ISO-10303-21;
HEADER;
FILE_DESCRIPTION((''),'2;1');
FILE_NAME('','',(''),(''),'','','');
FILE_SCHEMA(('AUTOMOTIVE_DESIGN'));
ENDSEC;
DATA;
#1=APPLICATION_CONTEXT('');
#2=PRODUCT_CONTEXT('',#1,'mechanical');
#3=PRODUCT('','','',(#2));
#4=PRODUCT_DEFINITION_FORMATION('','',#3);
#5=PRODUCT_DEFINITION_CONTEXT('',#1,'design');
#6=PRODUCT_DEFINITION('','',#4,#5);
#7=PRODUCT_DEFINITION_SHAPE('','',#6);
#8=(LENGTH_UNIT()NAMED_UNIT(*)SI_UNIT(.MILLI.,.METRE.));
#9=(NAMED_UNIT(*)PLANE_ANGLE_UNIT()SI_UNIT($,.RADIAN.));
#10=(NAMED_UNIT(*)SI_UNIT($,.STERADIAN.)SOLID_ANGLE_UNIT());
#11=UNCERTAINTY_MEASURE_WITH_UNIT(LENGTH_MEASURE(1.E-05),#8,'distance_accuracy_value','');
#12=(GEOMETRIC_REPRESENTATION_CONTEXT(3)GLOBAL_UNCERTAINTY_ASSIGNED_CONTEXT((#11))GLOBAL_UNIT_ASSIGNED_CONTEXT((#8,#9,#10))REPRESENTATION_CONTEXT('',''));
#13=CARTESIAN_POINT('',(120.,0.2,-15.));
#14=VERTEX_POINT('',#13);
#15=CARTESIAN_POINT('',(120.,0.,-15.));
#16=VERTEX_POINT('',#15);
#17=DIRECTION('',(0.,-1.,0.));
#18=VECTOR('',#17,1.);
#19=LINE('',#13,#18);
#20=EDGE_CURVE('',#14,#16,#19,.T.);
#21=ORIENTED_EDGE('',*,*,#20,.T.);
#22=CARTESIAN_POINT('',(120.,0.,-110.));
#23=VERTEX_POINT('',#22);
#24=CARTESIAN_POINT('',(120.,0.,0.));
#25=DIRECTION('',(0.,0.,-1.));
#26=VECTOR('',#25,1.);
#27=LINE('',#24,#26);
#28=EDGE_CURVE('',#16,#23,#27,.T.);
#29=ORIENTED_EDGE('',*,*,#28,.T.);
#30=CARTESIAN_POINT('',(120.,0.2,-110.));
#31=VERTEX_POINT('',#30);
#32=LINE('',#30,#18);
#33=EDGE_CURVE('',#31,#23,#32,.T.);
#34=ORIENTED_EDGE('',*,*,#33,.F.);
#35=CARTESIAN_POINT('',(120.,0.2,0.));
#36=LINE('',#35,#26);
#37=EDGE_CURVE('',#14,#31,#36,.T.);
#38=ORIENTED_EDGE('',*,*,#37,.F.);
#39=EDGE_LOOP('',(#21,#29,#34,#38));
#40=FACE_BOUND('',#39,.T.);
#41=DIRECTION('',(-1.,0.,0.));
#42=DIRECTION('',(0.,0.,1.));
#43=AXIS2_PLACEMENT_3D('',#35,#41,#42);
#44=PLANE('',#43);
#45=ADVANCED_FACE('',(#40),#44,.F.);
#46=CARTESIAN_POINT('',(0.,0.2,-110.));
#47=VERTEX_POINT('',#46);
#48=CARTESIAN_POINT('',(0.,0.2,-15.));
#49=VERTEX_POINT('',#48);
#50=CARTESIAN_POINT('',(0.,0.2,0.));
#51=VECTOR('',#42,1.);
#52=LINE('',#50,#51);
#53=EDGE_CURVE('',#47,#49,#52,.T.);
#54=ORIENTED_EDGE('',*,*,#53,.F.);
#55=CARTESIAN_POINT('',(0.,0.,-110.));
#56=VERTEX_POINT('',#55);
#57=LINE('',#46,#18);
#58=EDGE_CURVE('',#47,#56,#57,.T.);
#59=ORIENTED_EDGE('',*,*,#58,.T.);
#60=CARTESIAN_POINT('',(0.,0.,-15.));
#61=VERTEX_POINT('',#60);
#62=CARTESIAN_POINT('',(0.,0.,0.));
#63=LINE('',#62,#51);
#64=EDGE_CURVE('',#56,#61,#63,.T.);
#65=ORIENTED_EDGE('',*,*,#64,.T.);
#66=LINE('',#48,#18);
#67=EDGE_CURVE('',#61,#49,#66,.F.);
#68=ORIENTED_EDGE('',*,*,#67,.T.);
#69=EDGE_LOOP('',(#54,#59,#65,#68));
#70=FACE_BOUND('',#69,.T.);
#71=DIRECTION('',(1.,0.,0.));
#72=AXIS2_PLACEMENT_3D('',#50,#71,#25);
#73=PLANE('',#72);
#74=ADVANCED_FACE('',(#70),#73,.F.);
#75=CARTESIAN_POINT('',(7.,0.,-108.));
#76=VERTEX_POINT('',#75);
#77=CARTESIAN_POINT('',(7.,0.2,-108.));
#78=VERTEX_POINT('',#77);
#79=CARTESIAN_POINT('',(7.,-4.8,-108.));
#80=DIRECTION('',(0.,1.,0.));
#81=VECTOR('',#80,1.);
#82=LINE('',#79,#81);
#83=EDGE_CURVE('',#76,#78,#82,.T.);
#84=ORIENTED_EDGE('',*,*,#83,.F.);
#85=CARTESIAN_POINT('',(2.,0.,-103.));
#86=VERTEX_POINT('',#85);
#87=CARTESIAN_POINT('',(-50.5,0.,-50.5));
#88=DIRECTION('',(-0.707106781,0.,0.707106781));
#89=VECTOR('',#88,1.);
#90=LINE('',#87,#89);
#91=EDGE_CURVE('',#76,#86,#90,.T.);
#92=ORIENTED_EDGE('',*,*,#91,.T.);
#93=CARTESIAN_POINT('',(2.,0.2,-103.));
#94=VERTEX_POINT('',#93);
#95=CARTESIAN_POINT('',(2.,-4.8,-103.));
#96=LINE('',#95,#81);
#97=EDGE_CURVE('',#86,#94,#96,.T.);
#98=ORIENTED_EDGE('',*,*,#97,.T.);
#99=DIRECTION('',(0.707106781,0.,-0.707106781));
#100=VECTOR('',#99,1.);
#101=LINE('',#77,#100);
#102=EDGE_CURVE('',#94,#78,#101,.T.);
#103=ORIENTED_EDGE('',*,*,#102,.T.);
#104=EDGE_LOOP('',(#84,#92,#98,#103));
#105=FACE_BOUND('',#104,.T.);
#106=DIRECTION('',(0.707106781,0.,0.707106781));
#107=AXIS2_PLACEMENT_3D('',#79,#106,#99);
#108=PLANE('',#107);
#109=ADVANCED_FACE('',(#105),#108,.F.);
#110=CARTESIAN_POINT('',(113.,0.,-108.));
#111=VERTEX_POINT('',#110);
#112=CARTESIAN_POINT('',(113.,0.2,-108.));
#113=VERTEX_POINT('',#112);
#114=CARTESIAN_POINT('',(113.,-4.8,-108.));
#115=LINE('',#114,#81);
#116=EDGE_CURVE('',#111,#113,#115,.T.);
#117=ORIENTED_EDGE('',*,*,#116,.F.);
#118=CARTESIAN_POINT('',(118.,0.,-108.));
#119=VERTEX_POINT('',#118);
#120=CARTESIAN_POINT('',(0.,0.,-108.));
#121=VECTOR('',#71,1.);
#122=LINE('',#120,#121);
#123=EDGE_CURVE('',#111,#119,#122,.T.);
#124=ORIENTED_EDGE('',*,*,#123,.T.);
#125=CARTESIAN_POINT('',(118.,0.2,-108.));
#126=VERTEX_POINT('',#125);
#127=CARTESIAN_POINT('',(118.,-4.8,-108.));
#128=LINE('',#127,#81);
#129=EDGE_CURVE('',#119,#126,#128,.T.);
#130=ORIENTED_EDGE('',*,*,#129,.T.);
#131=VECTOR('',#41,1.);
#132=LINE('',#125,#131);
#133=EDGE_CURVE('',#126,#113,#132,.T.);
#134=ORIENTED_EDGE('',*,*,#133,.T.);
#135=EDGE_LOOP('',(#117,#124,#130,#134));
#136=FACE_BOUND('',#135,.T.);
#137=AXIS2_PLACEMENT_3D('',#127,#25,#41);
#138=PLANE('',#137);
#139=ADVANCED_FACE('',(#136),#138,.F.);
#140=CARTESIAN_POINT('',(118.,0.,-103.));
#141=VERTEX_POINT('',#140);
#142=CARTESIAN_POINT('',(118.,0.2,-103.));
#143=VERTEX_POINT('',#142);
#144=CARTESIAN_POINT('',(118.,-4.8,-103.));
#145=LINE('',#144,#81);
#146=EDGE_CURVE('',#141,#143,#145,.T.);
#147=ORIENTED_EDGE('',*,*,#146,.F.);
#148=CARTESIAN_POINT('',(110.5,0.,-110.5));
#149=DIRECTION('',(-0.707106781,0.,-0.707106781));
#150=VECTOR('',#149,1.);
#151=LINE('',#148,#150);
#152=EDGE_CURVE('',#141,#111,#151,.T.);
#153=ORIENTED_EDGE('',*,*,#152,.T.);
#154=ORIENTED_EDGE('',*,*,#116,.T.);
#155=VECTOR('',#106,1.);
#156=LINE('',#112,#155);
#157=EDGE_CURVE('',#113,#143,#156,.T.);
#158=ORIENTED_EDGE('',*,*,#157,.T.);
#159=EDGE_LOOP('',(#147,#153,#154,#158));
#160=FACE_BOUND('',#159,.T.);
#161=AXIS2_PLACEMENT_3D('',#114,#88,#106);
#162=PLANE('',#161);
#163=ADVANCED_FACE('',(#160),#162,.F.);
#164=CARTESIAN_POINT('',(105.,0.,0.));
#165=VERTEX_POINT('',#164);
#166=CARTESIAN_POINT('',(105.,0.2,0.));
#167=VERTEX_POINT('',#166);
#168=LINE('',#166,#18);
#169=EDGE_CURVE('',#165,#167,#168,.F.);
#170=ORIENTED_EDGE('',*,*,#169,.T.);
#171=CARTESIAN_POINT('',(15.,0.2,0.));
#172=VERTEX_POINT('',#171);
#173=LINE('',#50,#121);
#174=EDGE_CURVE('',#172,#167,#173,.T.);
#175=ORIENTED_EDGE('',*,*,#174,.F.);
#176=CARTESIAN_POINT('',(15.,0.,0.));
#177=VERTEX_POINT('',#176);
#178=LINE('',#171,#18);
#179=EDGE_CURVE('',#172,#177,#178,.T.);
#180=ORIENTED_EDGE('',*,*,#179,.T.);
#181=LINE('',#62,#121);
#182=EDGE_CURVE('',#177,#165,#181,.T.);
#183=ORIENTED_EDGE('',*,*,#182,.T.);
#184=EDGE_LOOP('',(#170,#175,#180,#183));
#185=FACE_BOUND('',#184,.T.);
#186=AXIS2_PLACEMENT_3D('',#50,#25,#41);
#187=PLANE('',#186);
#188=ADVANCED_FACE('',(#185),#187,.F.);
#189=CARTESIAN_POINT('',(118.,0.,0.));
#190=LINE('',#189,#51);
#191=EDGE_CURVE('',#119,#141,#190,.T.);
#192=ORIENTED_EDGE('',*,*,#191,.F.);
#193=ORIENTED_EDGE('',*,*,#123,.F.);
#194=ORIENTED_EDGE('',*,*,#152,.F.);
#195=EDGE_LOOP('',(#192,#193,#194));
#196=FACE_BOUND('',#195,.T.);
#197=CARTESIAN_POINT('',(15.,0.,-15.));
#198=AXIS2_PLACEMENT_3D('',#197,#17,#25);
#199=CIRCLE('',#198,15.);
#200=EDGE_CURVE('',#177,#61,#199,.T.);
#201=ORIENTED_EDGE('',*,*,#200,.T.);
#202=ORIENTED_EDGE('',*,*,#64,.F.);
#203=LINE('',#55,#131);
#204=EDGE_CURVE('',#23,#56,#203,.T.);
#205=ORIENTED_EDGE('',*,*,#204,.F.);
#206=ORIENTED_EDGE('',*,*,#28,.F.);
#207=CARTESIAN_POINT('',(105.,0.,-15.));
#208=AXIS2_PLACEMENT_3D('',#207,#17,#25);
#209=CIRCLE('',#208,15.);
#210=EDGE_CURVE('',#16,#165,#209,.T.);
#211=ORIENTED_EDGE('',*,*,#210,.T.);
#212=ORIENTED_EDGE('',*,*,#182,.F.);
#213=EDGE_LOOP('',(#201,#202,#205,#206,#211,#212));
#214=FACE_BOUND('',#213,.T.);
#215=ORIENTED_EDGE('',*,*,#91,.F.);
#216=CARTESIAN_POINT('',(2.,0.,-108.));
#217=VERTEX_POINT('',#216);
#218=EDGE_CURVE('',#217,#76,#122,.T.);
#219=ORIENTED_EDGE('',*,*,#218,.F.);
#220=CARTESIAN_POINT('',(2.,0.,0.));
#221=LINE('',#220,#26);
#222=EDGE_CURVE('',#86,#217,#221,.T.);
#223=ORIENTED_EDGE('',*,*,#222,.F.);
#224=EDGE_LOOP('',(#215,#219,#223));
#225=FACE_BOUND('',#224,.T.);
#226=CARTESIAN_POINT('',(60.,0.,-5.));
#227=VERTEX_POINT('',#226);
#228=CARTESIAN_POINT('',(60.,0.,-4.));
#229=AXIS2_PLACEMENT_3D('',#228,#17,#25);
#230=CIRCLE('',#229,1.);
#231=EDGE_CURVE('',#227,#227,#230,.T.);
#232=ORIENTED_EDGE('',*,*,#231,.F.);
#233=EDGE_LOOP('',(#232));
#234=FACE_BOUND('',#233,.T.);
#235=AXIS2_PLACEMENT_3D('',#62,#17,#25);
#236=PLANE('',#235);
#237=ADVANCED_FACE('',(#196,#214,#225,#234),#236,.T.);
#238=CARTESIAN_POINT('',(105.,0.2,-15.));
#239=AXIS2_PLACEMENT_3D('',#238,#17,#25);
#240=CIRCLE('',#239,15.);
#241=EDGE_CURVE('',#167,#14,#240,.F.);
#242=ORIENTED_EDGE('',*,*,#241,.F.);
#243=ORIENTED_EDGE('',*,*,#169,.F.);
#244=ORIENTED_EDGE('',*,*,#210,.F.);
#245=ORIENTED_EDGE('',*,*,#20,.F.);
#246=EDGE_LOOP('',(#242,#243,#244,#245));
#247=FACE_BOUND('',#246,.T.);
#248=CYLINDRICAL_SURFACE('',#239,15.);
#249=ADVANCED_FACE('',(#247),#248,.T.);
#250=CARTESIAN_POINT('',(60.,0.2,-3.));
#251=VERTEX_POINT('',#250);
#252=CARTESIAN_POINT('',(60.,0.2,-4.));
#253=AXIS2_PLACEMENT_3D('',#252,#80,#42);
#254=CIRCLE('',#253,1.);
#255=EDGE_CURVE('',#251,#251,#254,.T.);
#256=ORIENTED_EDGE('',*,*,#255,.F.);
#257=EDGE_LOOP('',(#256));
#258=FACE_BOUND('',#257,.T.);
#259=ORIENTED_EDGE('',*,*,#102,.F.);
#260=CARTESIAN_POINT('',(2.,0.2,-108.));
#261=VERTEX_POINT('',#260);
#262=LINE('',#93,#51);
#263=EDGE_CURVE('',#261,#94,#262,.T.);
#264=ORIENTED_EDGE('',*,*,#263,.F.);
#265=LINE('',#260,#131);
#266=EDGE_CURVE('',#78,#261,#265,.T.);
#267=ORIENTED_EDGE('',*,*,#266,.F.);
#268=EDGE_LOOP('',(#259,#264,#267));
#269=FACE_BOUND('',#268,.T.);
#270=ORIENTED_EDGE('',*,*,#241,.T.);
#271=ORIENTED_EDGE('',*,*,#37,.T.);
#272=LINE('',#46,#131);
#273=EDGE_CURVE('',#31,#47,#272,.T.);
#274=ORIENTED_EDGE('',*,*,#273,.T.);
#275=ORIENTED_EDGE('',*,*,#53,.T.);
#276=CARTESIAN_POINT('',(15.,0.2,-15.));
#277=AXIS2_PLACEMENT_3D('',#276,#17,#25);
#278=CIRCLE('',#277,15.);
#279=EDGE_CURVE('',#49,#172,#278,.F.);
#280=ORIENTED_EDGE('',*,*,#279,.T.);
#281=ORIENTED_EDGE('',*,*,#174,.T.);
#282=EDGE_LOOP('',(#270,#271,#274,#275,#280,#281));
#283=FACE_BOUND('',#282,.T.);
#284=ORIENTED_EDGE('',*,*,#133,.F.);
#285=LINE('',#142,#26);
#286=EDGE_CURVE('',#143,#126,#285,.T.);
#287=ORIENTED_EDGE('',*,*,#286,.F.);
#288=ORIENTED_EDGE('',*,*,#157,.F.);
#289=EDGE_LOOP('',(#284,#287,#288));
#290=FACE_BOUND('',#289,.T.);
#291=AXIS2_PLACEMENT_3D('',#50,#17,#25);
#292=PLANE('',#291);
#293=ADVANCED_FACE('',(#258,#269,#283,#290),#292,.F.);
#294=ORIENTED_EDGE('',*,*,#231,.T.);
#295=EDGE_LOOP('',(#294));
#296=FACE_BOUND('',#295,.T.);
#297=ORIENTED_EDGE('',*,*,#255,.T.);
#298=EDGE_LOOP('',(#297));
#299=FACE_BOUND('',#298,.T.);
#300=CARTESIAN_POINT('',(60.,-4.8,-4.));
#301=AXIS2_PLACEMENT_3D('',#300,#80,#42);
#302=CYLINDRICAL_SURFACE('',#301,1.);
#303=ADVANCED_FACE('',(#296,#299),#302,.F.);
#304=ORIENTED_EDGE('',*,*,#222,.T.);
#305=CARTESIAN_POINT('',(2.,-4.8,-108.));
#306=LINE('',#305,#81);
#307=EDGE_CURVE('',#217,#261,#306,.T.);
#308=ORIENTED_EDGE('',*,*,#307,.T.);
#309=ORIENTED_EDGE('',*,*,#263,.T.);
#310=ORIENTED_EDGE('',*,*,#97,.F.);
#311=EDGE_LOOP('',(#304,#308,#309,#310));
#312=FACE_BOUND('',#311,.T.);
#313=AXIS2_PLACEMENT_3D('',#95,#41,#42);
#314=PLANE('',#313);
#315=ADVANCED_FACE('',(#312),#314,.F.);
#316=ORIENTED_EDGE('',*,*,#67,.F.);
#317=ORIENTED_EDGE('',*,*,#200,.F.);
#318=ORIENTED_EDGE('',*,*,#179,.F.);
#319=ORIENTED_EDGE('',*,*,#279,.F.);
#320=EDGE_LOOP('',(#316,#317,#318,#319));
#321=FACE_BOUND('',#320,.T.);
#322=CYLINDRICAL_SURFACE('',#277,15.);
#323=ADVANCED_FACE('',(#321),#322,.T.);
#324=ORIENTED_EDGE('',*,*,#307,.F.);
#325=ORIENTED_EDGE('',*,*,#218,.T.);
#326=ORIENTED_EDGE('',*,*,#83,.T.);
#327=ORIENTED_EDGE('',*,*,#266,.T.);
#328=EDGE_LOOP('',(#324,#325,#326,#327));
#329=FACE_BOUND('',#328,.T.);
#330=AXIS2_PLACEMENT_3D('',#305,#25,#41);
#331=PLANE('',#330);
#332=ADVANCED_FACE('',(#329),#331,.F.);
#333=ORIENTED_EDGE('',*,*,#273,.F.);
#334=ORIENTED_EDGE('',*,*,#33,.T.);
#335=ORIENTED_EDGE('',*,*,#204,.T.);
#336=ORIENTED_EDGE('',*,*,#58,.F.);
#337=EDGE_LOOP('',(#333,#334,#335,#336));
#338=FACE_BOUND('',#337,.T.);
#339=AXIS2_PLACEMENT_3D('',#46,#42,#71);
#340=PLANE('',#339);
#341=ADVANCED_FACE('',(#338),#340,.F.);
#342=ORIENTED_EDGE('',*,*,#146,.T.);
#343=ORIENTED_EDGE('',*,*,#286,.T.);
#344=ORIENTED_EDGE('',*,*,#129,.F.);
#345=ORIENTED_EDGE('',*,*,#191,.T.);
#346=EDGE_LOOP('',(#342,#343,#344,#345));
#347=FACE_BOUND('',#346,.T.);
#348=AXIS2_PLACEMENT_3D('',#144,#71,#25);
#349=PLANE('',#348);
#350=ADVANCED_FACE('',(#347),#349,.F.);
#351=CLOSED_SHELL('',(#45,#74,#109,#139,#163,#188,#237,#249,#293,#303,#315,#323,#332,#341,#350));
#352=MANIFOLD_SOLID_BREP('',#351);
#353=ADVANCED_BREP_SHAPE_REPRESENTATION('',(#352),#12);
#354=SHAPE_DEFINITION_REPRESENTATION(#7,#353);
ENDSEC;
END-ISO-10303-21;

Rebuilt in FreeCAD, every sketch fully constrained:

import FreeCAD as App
import Part
import Sketcher
from FreeCAD import Vector


def edges_at(feature, points):
    """Names of the edges that pass closest to the given points."""
    edges = feature.Shape.Edges
    near = lambda p: min(range(len(edges)), key=lambda i: edges[i].distToShape(Part.Vertex(*p))[0])
    return sorted({f"Edge{near(p) + 1}" for p in points})


def add_polygon(sketch, points):
    """Adds a closed chain of lines whose ends are joined by coincident constraints."""
    first, n = sketch.GeometryCount, len(points)
    for a, b in zip(points, points[1:] + points[:1]):
        sketch.addGeometry(Part.LineSegment(App.Vector(*a, 0), App.Vector(*b, 0)), False)
    for i in range(n):
        sketch.addConstraint(Sketcher.Constraint("Coincident", first + i, 2, first + (i + 1) % n, 1))

doc = App.newDocument("Part")
body = doc.addObject("PartDesign::Body", "Body")

# Sketch on XZ plane
sketch1 = body.newObject("Sketcher::SketchObject", "Sketch")
sketch1.AttachmentSupport = (doc.getObject("XZ_Plane"), [""])
sketch1.MapMode = "FlatFace"
add_polygon(sketch1, [(0, -110), (0, 0), (120, 0), (120, -110)])  # lines 0-3
sketch1.addConstraint(Sketcher.Constraint("Vertical", 0))
sketch1.addConstraint(Sketcher.Constraint("Horizontal", 1))
sketch1.addConstraint(Sketcher.Constraint("Vertical", 2))
sketch1.addConstraint(Sketcher.Constraint("Horizontal", 3))
sketch1.addConstraint(Sketcher.Constraint("Coincident", 0, 2, -1, 1))
sketch1.addConstraint(Sketcher.Constraint("DistanceX", 1, 1, 1, 2, 120.0))
sketch1.addConstraint(Sketcher.Constraint("DistanceY", 0, 1, 0, 2, 110.0))
pad1 = body.newObject("PartDesign::Pad", "Pad")
pad1.Profile = sketch1
pad1.Length = 0.2
pad1.Reversed = True
doc.recompute()

fillet = body.newObject("PartDesign::Fillet", "Fillet")
fillet.Base = (pad1, edges_at(pad1, [(120, 0.1, 0), (0, 0.1, 0)]))
fillet.Radius = 15

# Sketch on XZ plane
sketch2 = body.newObject("Sketcher::SketchObject", "Sketch001")
sketch2.AttachmentSupport = (doc.getObject("XZ_Plane"), [""])
sketch2.MapMode = "FlatFace"
sketch2.AttachmentOffset = App.Placement(Vector(0, 0, -0.2), App.Rotation())
sketch2.addGeometry(Part.Circle(Vector(60, -4, 0), Vector(0, 0, 1), 1), False)  # 0
add_polygon(sketch2, [(7, -108), (2, -108), (2, -103)])  # lines 1-3
add_polygon(sketch2, [(118, -103), (118, -108), (113, -108)])  # lines 4-6
sketch2.addConstraint(Sketcher.Constraint("Horizontal", 1))
sketch2.addConstraint(Sketcher.Constraint("Vertical", 2))
sketch2.addConstraint(Sketcher.Constraint("Vertical", 4))
sketch2.addConstraint(Sketcher.Constraint("Horizontal", 5))
sketch2.addConstraint(Sketcher.Constraint("Perpendicular", 3, 6))
sketch2.addConstraint(Sketcher.Constraint("Horizontal", 3, 2, 4, 2))
sketch2.addConstraint(Sketcher.Constraint("Horizontal", 2, 2, 6, 2))
sketch2.addConstraint(Sketcher.Constraint("Equal", 1, 5))
sketch2.addConstraint(Sketcher.Constraint("Diameter", 0, 2.0))
sketch2.addConstraint(Sketcher.Constraint("DistanceX", 1, 2, 1, 1, 5.0))
sketch2.addConstraint(Sketcher.Constraint("DistanceX", -1, 1, 0, 3, 60.0))
sketch2.addConstraint(Sketcher.Constraint("DistanceY", 0, 3, -1, 1, 4.0))
sketch2.addConstraint(Sketcher.Constraint("DistanceX", -1, 1, 1, 2, 2.0))
sketch2.addConstraint(Sketcher.Constraint("DistanceY", 1, 2, -1, 1, 108.0))
sketch2.addConstraint(Sketcher.Constraint("DistanceX", -1, 1, 4, 2, 118.0))
pocket1 = body.newObject("PartDesign::Pocket", "Pocket")
pocket1.Profile = sketch2
pocket1.Length = 5
pocket1.Reversed = True

doc.recompute()
